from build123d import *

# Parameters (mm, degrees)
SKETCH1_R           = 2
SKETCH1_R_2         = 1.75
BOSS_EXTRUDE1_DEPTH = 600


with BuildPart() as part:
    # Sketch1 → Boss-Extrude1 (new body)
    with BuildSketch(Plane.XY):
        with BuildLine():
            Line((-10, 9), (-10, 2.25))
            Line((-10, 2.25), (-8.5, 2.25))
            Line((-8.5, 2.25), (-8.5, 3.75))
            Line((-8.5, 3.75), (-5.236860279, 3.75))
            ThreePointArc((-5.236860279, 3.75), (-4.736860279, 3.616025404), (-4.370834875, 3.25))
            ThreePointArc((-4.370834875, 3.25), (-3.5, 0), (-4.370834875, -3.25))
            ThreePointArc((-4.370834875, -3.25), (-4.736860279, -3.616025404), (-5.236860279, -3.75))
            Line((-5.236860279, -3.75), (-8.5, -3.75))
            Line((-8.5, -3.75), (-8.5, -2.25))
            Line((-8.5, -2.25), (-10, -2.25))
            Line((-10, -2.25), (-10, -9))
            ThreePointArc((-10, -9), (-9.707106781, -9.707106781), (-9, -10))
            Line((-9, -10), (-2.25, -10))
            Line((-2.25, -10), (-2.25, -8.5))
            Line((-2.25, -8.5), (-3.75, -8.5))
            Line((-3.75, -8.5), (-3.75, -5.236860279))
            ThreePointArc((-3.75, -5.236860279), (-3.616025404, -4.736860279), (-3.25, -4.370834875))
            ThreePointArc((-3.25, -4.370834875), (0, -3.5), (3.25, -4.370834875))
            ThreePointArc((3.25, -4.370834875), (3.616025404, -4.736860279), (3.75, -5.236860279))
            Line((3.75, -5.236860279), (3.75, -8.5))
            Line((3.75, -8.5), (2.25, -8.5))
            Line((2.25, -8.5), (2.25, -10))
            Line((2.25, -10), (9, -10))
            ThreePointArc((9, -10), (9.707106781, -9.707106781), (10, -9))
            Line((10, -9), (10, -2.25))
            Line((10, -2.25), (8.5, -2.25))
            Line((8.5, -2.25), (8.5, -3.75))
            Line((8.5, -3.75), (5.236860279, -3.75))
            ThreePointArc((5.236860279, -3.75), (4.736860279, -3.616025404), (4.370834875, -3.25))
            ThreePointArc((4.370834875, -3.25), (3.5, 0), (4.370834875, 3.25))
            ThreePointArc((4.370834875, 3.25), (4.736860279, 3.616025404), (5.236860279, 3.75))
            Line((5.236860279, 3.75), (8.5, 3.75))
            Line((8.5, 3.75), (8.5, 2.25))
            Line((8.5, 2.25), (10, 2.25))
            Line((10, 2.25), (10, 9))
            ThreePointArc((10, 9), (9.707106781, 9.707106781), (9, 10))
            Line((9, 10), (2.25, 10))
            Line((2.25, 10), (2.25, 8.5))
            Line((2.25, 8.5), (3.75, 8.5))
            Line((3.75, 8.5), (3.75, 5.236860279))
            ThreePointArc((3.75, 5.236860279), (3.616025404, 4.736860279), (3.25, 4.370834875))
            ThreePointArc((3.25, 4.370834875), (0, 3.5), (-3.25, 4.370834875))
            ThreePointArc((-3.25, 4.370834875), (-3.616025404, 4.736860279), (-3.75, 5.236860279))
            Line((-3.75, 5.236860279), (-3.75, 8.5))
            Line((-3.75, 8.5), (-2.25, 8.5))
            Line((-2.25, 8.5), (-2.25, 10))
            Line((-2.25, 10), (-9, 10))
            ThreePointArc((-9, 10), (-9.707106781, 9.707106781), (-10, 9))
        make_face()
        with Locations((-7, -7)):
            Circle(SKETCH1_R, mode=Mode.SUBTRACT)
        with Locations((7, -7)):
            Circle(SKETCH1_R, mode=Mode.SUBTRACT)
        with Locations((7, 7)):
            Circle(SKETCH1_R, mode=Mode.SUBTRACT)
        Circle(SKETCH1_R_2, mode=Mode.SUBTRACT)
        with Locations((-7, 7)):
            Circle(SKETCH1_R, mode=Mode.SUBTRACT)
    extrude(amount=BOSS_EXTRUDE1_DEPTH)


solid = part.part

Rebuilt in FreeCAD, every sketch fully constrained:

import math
import FreeCAD as App
import Part
import Sketcher
from FreeCAD import Vector

doc = App.newDocument("Part")
body = doc.addObject("PartDesign::Body", "Body")

sketch1 = body.newObject("Sketcher::SketchObject", "Sketch")
sketch1.AttachmentSupport = (doc.getObject("XY_Plane"), [""])
sketch1.MapMode = "FlatFace"
sketch1.addGeometry(Part.LineSegment(Vector(-10, 9, 0), Vector(-10, 2.25, 0)), False)
sketch1.addGeometry(Part.LineSegment(Vector(-10, 2.25, 0), Vector(-8.5, 2.25, 0)), False)
sketch1.addGeometry(Part.LineSegment(Vector(-8.5, 2.25, 0), Vector(-8.5, 3.75, 0)), False)
sketch1.addGeometry(Part.LineSegment(Vector(-8.5, 3.75, 0), Vector(-5.23686, 3.75, 0)), False)
sketch1.addGeometry(Part.ArcOfCircle(Part.Circle(Vector(-5.23686, 2.75, 0), Vector(0, 0, 1), 1), math.radians(30), math.radians(90)), False)
sketch1.addGeometry(Part.ArcOfCircle(Part.Circle(Vector(-10, 0, 0), Vector(0, 0, 1), 6.5), math.radians(-30), math.radians(30)), False)
sketch1.addGeometry(Part.ArcOfCircle(Part.Circle(Vector(-5.23686, -2.75, 0), Vector(0, 0, 1), 1), math.radians(-90), math.radians(-30)), False)
sketch1.addGeometry(Part.LineSegment(Vector(-5.23686, -3.75, 0), Vector(-8.5, -3.75, 0)), False)
sketch1.addGeometry(Part.LineSegment(Vector(-8.5, -3.75, 0), Vector(-8.5, -2.25, 0)), False)
sketch1.addGeometry(Part.LineSegment(Vector(-8.5, -2.25, 0), Vector(-10, -2.25, 0)), False)
sketch1.addGeometry(Part.LineSegment(Vector(-10, -2.25, 0), Vector(-10, -9, 0)), False)
sketch1.addGeometry(Part.ArcOfCircle(Part.Circle(Vector(-9, -9, 0), Vector(0, 0, 1), 1), math.radians(-180), math.radians(-90)), False)
sketch1.addGeometry(Part.LineSegment(Vector(-9, -10, 0), Vector(-2.25, -10, 0)), False)
sketch1.addGeometry(Part.LineSegment(Vector(-2.25, -10, 0), Vector(-2.25, -8.5, 0)), False)
sketch1.addGeometry(Part.LineSegment(Vector(-2.25, -8.5, 0), Vector(-3.75, -8.5, 0)), False)
sketch1.addGeometry(Part.LineSegment(Vector(-3.75, -8.5, 0), Vector(-3.75, -5.23686, 0)), False)
sketch1.addGeometry(Part.ArcOfCircle(Part.Circle(Vector(-2.75, -5.23686, 0), Vector(0, 0, 1), 1), math.radians(120), math.radians(180)), False)
sketch1.addGeometry(Part.ArcOfCircle(Part.Circle(Vector(0, -10, 0), Vector(0, 0, 1), 6.5), math.radians(60), math.radians(120)), False)
sketch1.addGeometry(Part.ArcOfCircle(Part.Circle(Vector(2.75, -5.23686, 0), Vector(0, 0, 1), 1), math.radians(0), math.radians(60)), False)
sketch1.addGeometry(Part.LineSegment(Vector(3.75, -5.23686, 0), Vector(3.75, -8.5, 0)), False)
sketch1.addGeometry(Part.LineSegment(Vector(3.75, -8.5, 0), Vector(2.25, -8.5, 0)), False)
sketch1.addGeometry(Part.LineSegment(Vector(2.25, -8.5, 0), Vector(2.25, -10, 0)), False)
sketch1.addGeometry(Part.LineSegment(Vector(2.25, -10, 0), Vector(9, -10, 0)), False)
sketch1.addGeometry(Part.ArcOfCircle(Part.Circle(Vector(9, -9, 0), Vector(0, 0, 1), 1), math.radians(-90), math.radians(0)), False)
sketch1.addGeometry(Part.LineSegment(Vector(10, -9, 0), Vector(10, -2.25, 0)), False)
sketch1.addGeometry(Part.LineSegment(Vector(10, -2.25, 0), Vector(8.5, -2.25, 0)), False)
sketch1.addGeometry(Part.LineSegment(Vector(8.5, -2.25, 0), Vector(8.5, -3.75, 0)), False)
sketch1.addGeometry(Part.LineSegment(Vector(8.5, -3.75, 0), Vector(5.23686, -3.75, 0)), False)
sketch1.addGeometry(Part.ArcOfCircle(Part.Circle(Vector(5.23686, -2.75, 0), Vector(0, 0, 1), 1), math.radians(-150), math.radians(-90)), False)
sketch1.addGeometry(Part.ArcOfCircle(Part.Circle(Vector(10, 0, 0), Vector(0, 0, 1), 6.5), math.radians(150), math.radians(210)), False)
sketch1.addGeometry(Part.ArcOfCircle(Part.Circle(Vector(5.23686, 2.75, 0), Vector(0, 0, 1), 1), math.radians(90), math.radians(150)), False)
sketch1.addGeometry(Part.LineSegment(Vector(5.23686, 3.75, 0), Vector(8.5, 3.75, 0)), False)
sketch1.addGeometry(Part.LineSegment(Vector(8.5, 3.75, 0), Vector(8.5, 2.25, 0)), False)
sketch1.addGeometry(Part.LineSegment(Vector(8.5, 2.25, 0), Vector(10, 2.25, 0)), False)
sketch1.addGeometry(Part.LineSegment(Vector(10, 2.25, 0), Vector(10, 9, 0)), False)
sketch1.addGeometry(Part.ArcOfCircle(Part.Circle(Vector(9, 9, 0), Vector(0, 0, 1), 1), math.radians(0), math.radians(90)), False)
sketch1.addGeometry(Part.LineSegment(Vector(9, 10, 0), Vector(2.25, 10, 0)), False)
sketch1.addGeometry(Part.LineSegment(Vector(2.25, 10, 0), Vector(2.25, 8.5, 0)), False)
sketch1.addGeometry(Part.LineSegment(Vector(2.25, 8.5, 0), Vector(3.75, 8.5, 0)), False)
sketch1.addGeometry(Part.LineSegment(Vector(3.75, 8.5, 0), Vector(3.75, 5.23686, 0)), False)
sketch1.addGeometry(Part.ArcOfCircle(Part.Circle(Vector(2.75, 5.23686, 0), Vector(0, 0, 1), 1), math.radians(-60), math.radians(0)), False)
sketch1.addGeometry(Part.ArcOfCircle(Part.Circle(Vector(0, 10, 0), Vector(0, 0, 1), 6.5), math.radians(-120), math.radians(-60)), False)
sketch1.addGeometry(Part.ArcOfCircle(Part.Circle(Vector(-2.75, 5.23686, 0), Vector(0, 0, 1), 1), math.radians(180), math.radians(240)), False)
sketch1.addGeometry(Part.LineSegment(Vector(-3.75, 5.23686, 0), Vector(-3.75, 8.5, 0)), False)
sketch1.addGeometry(Part.LineSegment(Vector(-3.75, 8.5, 0), Vector(-2.25, 8.5, 0)), False)
sketch1.addGeometry(Part.LineSegment(Vector(-2.25, 8.5, 0), Vector(-2.25, 10, 0)), False)
sketch1.addGeometry(Part.LineSegment(Vector(-2.25, 10, 0), Vector(-9, 10, 0)), False)
sketch1.addGeometry(Part.ArcOfCircle(Part.Circle(Vector(-9, 9, 0), Vector(0, 0, 1), 1), math.radians(90), math.radians(180)), False)
sketch1.addGeometry(Part.Circle(Vector(-7, -7, 0), Vector(0, 0, 1), 2), False)
sketch1.addGeometry(Part.Circle(Vector(7, -7, 0), Vector(0, 0, 1), 2), False)
sketch1.addGeometry(Part.Circle(Vector(-7, 7, 0), Vector(0, 0, 1), 2), False)
sketch1.addGeometry(Part.Circle(Vector(0, 0, 0), Vector(0, 0, 1), 1.75), False)
sketch1.addGeometry(Part.Circle(Vector(7, 7, 0), Vector(0, 0, 1), 2), False)
sketch1.addConstraint(Sketcher.Constraint("Coincident", 0, 2, 1, 1))
sketch1.addConstraint(Sketcher.Constraint("Coincident", 1, 2, 2, 1))
sketch1.addConstraint(Sketcher.Constraint("Coincident", 2, 2, 3, 1))
sketch1.addConstraint(Sketcher.Constraint("Tangent", 3, 2, 4, 2))
sketch1.addConstraint(Sketcher.Constraint("Tangent", 4, 1, 5, 2))
sketch1.addConstraint(Sketcher.Constraint("Tangent", 5, 1, 6, 2))
sketch1.addConstraint(Sketcher.Constraint("Tangent", 6, 1, 7, 1))
sketch1.addConstraint(Sketcher.Constraint("Coincident", 7, 2, 8, 1))
sketch1.addConstraint(Sketcher.Constraint("Coincident", 8, 2, 9, 1))
sketch1.addConstraint(Sketcher.Constraint("Coincident", 9, 2, 10, 1))
sketch1.addConstraint(Sketcher.Constraint("Tangent", 10, 2, 11, 1))
sketch1.addConstraint(Sketcher.Constraint("Tangent", 11, 2, 12, 1))
sketch1.addConstraint(Sketcher.Constraint("Coincident", 12, 2, 13, 1))
sketch1.addConstraint(Sketcher.Constraint("Coincident", 13, 2, 14, 1))
sketch1.addConstraint(Sketcher.Constraint("Coincident", 14, 2, 15, 1))
sketch1.addConstraint(Sketcher.Constraint("Tangent", 15, 2, 16, 2))
sketch1.addConstraint(Sketcher.Constraint("Tangent", 16, 1, 17, 2))
sketch1.addConstraint(Sketcher.Constraint("Tangent", 17, 1, 18, 2))
sketch1.addConstraint(Sketcher.Constraint("Tangent", 18, 1, 19, 1))
sketch1.addConstraint(Sketcher.Constraint("Coincident", 19, 2, 20, 1))
sketch1.addConstraint(Sketcher.Constraint("Coincident", 20, 2, 21, 1))
sketch1.addConstraint(Sketcher.Constraint("Coincident", 21, 2, 22, 1))
sketch1.addConstraint(Sketcher.Constraint("Tangent", 22, 2, 23, 1))
sketch1.addConstraint(Sketcher.Constraint("Tangent", 23, 2, 24, 1))
sketch1.addConstraint(Sketcher.Constraint("Coincident", 24, 2, 25, 1))
sketch1.addConstraint(Sketcher.Constraint("Coincident", 25, 2, 26, 1))
sketch1.addConstraint(Sketcher.Constraint("Coincident", 26, 2, 27, 1))
sketch1.addConstraint(Sketcher.Constraint("Tangent", 27, 2, 28, 2))
sketch1.addConstraint(Sketcher.Constraint("Tangent", 28, 1, 29, 2))
sketch1.addConstraint(Sketcher.Constraint("Tangent", 29, 1, 30, 2))
sketch1.addConstraint(Sketcher.Constraint("Tangent", 30, 1, 31, 1))
sketch1.addConstraint(Sketcher.Constraint("Coincident", 31, 2, 32, 1))
sketch1.addConstraint(Sketcher.Constraint("Coincident", 32, 2, 33, 1))
sketch1.addConstraint(Sketcher.Constraint("Coincident", 33, 2, 34, 1))
sketch1.addConstraint(Sketcher.Constraint("Tangent", 34, 2, 35, 1))
sketch1.addConstraint(Sketcher.Constraint("Tangent", 35, 2, 36, 1))
sketch1.addConstraint(Sketcher.Constraint("Coincident", 36, 2, 37, 1))
sketch1.addConstraint(Sketcher.Constraint("Coincident", 37, 2, 38, 1))
sketch1.addConstraint(Sketcher.Constraint("Coincident", 38, 2, 39, 1))
sketch1.addConstraint(Sketcher.Constraint("Tangent", 39, 2, 40, 2))
sketch1.addConstraint(Sketcher.Constraint("Tangent", 40, 1, 41, 2))
sketch1.addConstraint(Sketcher.Constraint("Tangent", 41, 1, 42, 2))
sketch1.addConstraint(Sketcher.Constraint("Tangent", 42, 1, 43, 1))
sketch1.addConstraint(Sketcher.Constraint("Coincident", 43, 2, 44, 1))
sketch1.addConstraint(Sketcher.Constraint("Coincident", 44, 2, 45, 1))
sketch1.addConstraint(Sketcher.Constraint("Coincident", 45, 2, 46, 1))
sketch1.addConstraint(Sketcher.Constraint("Tangent", 46, 2, 47, 1))
sketch1.addConstraint(Sketcher.Constraint("Tangent", 47, 2, 0, 1))
sketch1.addConstraint(Sketcher.Constraint("Vertical", 0))
sketch1.addConstraint(Sketcher.Constraint("Horizontal", 1))
sketch1.addConstraint(Sketcher.Constraint("Vertical", 2))
sketch1.addConstraint(Sketcher.Constraint("Horizontal", 3))
sketch1.addConstraint(Sketcher.Constraint("Horizontal", 7))
sketch1.addConstraint(Sketcher.Constraint("Vertical", 8))
sketch1.addConstraint(Sketcher.Constraint("Horizontal", 9))
sketch1.addConstraint(Sketcher.Constraint("Vertical", 10))
sketch1.addConstraint(Sketcher.Constraint("Horizontal", 12))
sketch1.addConstraint(Sketcher.Constraint("Vertical", 13))
sketch1.addConstraint(Sketcher.Constraint("Horizontal", 14))
sketch1.addConstraint(Sketcher.Constraint("Vertical", 15))
sketch1.addConstraint(Sketcher.Constraint("Vertical", 19))
sketch1.addConstraint(Sketcher.Constraint("Horizontal", 20))
sketch1.addConstraint(Sketcher.Constraint("Vertical", 21))
sketch1.addConstraint(Sketcher.Constraint("Horizontal", 22))
sketch1.addConstraint(Sketcher.Constraint("Vertical", 24))
sketch1.addConstraint(Sketcher.Constraint("Horizontal", 25))
sketch1.addConstraint(Sketcher.Constraint("Vertical", 26))
sketch1.addConstraint(Sketcher.Constraint("Horizontal", 27))
sketch1.addConstraint(Sketcher.Constraint("Horizontal", 31))
sketch1.addConstraint(Sketcher.Constraint("Vertical", 32))
sketch1.addConstraint(Sketcher.Constraint("Horizontal", 33))
sketch1.addConstraint(Sketcher.Constraint("Vertical", 34))
sketch1.addConstraint(Sketcher.Constraint("Horizontal", 36))
sketch1.addConstraint(Sketcher.Constraint("Vertical", 37))
sketch1.addConstraint(Sketcher.Constraint("Horizontal", 38))
sketch1.addConstraint(Sketcher.Constraint("Vertical", 39))
sketch1.addConstraint(Sketcher.Constraint("Vertical", 43))
sketch1.addConstraint(Sketcher.Constraint("Horizontal", 44))
sketch1.addConstraint(Sketcher.Constraint("Vertical", 45))
sketch1.addConstraint(Sketcher.Constraint("Horizontal", 46))
sketch1.addConstraint(Sketcher.Constraint("Coincident", 51, 3, -1, 1))
sketch1.addConstraint(Sketcher.Constraint("Equal", 4, 6))
sketch1.addConstraint(Sketcher.Constraint("Equal", 6, 11))
sketch1.addConstraint(Sketcher.Constraint("Equal", 11, 16))
sketch1.addConstraint(Sketcher.Constraint("Equal", 5, 17))
sketch1.addConstraint(Sketcher.Constraint("Equal", 16, 18))
sketch1.addConstraint(Sketcher.Constraint("Equal", 18, 23))
sketch1.addConstraint(Sketcher.Constraint("Equal", 23, 28))
sketch1.addConstraint(Sketcher.Constraint("Equal", 17, 29))
sketch1.addConstraint(Sketcher.Constraint("Equal", 28, 30))
sketch1.addConstraint(Sketcher.Constraint("Equal", 30, 35))
sketch1.addConstraint(Sketcher.Constraint("Equal", 35, 40))
sketch1.addConstraint(Sketcher.Constraint("Equal", 29, 41))
sketch1.addConstraint(Sketcher.Constraint("Equal", 40, 42))
sketch1.addConstraint(Sketcher.Constraint("Equal", 42, 47))
sketch1.addConstraint(Sketcher.Constraint("Equal", 48, 49))
sketch1.addConstraint(Sketcher.Constraint("Equal", 49, 50))
sketch1.addConstraint(Sketcher.Constraint("Equal", 50, 52))
sketch1.addConstraint(Sketcher.Constraint("Symmetric", 4, 3, 28, 3, -1, 1))
sketch1.addConstraint(Sketcher.Constraint("Symmetric", 6, 3, 30, 3, -1, 1))
sketch1.addConstraint(Sketcher.Constraint("Symmetric", 11, 3, 35, 3, -1, 1))
sketch1.addConstraint(Sketcher.Constraint("Symmetric", 16, 3, 40, 3, -1, 1))
sketch1.addConstraint(Sketcher.Constraint("Symmetric", 18, 3, 42, 3, -1, 1))
sketch1.addConstraint(Sketcher.Constraint("Symmetric", 23, 3, 47, 3, -1, 1))
sketch1.addConstraint(Sketcher.Constraint("Symmetric", 49, 3, 50, 3, -1, 1))
sketch1.addConstraint(Sketcher.Constraint("Symmetric", 48, 3, 52, 3, -1, 1))
sketch1.addConstraint(Sketcher.Constraint("Symmetric", 1, 2, 25, 2, -1, 1))
sketch1.addConstraint(Sketcher.Constraint("Symmetric", 8, 2, 32, 2, -1, 1))
sketch1.addConstraint(Sketcher.Constraint("Symmetric", 13, 2, 37, 2, -1, 1))
sketch1.addConstraint(Sketcher.Constraint("Symmetric", 20, 2, 44, 2, -1, 1))
sketch1.addConstraint(Sketcher.Constraint("Symmetric", 16, 3, 18, 3, -2))
sketch1.addConstraint(Sketcher.Constraint("Symmetric", 11, 3, 23, 3, -2))
sketch1.addConstraint(Sketcher.Constraint("Symmetric", 6, 3, 28, 3, -2))
sketch1.addConstraint(Sketcher.Constraint("Symmetric", 48, 3, 49, 3, -2))
sketch1.addConstraint(Sketcher.Constraint("Symmetric", 13, 2, 20, 2, -2))
sketch1.addConstraint(Sketcher.Constraint("Symmetric", 8, 2, 25, 2, -2))
sketch1.addConstraint(Sketcher.Constraint("Horizontal", 17, 3, 11, 2))
sketch1.addConstraint(Sketcher.Constraint("Vertical", 5, 3, 0, 2))
sketch1.addConstraint(Sketcher.Constraint("Equal", 9, 14))
sketch1.addConstraint(Sketcher.Constraint("Equal", 46, 0))
sketch1.addConstraint(Sketcher.Constraint("Equal", 44, 2))
sketch1.addConstraint(Sketcher.Constraint("Equal", 8, 13))
sketch1.addConstraint(Sketcher.Constraint("Equal", 31, 15))
sketch1.addConstraint(Sketcher.Constraint("Diameter", 48, 4.0))
sketch1.addConstraint(Sketcher.Constraint("Radius", 4, 1.0))
sketch1.addConstraint(Sketcher.Constraint("Diameter", 51, 3.5))
sketch1.addConstraint(Sketcher.Constraint("Radius", 5, 6.5))
sketch1.addConstraint(Sketcher.Constraint("DistanceX", 1, 1, 1, 2, 1.5))
sketch1.addConstraint(Sketcher.Constraint("DistanceX", 5, 3, -1, 1, 10.0))
sketch1.addConstraint(Sketcher.Constraint("DistanceX", 48, 3, -1, 1, 7.0))
sketch1.addConstraint(Sketcher.Constraint("DistanceY", 48, 3, -1, 1, 7.0))
sketch1.addConstraint(Sketcher.Constraint("DistanceX", 12, 1, 12, 2, 6.75))
pad1 = body.newObject("PartDesign::Pad", "Pad")
pad1.Profile = sketch1
pad1.Length = 600

doc.recompute()
